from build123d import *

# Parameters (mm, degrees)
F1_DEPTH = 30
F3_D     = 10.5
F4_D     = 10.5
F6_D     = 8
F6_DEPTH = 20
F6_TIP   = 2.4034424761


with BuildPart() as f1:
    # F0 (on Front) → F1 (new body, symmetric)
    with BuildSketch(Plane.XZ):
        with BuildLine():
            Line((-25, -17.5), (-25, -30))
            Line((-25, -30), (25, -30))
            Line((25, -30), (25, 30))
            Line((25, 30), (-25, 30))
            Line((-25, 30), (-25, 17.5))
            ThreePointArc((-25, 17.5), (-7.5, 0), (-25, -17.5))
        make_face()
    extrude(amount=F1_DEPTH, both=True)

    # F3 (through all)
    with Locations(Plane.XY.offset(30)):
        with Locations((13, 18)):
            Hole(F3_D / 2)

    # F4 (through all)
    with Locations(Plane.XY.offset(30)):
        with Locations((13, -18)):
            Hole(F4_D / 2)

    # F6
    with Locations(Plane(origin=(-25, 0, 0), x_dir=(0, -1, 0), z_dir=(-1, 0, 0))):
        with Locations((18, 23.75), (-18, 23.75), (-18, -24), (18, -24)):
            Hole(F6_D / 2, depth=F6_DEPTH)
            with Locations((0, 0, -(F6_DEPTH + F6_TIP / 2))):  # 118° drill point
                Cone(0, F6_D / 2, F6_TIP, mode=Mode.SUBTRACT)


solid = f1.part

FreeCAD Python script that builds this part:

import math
import FreeCAD as App
import Part
import Sketcher

V = App.Vector
Q = App.Units.Quantity

doc = App.newDocument("Part")
body = doc.addObject("PartDesign::Body", "Body")

# Sketch on XZ plane
sketch1 = body.newObject("Sketcher::SketchObject", "Sketch")
sketch1.AttachmentSupport = (doc.getObject("XZ_Plane"), [""])
sketch1.MapMode = "FlatFace"
sketch1.addGeometry(Part.LineSegment(V(-25, -18, 0), V(-25, -30, 0)), False)
sketch1.addGeometry(Part.LineSegment(V(-25, -30, 0), V(25, -30, 0)), False)
sketch1.addGeometry(Part.LineSegment(V(25, -30, 0), V(25, 30, 0)), False)
sketch1.addGeometry(Part.LineSegment(V(25, 30, 0), V(-25, 30, 0)), False)
sketch1.addGeometry(Part.LineSegment(V(-25, 30, 0), V(-25, 18, 0)), False)
sketch1.addGeometry(Part.ArcOfCircle(Part.Circle(V(-25, 0, 0), V(0, 0, 1), 18), math.radians(-90), math.radians(90)), False)
sketch1.addConstraint(Sketcher.Constraint("Coincident", 0, 2, 1, 1))
sketch1.addConstraint(Sketcher.Constraint("Coincident", 1, 2, 2, 1))
sketch1.addConstraint(Sketcher.Constraint("Coincident", 2, 2, 3, 1))
sketch1.addConstraint(Sketcher.Constraint("Coincident", 3, 2, 4, 1))
sketch1.addConstraint(Sketcher.Constraint("Coincident", 4, 2, 5, 2))
sketch1.addConstraint(Sketcher.Constraint("Coincident", 5, 1, 0, 1))
sketch1.addConstraint(Sketcher.Constraint("Vertical", 0))
sketch1.addConstraint(Sketcher.Constraint("Horizontal", 1))
sketch1.addConstraint(Sketcher.Constraint("Vertical", 2))
sketch1.addConstraint(Sketcher.Constraint("Horizontal", 3))
sketch1.addConstraint(Sketcher.Constraint("Vertical", 4))
sketch1.addConstraint(Sketcher.Constraint("Symmetric", 0, 2, 2, 2, -1, 1))
sketch1.addConstraint(Sketcher.Constraint("Symmetric", 4, 2, 5, 1, -1))
sketch1.addConstraint(Sketcher.Constraint("Vertical", 5, 3, 0, 2))
sketch1.addConstraint(Sketcher.Constraint("Radius", 5, Q("17.5 mm")))
sketch1.addConstraint(Sketcher.Constraint("DistanceX", 1, 1, 1, 2, Q("50 mm")))
sketch1.addConstraint(Sketcher.Constraint("DistanceY", 2, 1, 2, 2, Q("60 mm")))
pad1 = body.newObject("PartDesign::Pad", "Pad")
pad1.Profile = sketch1
pad1.Length = 60
pad1.Midplane = True

# Sketch on XY plane
sketch2 = body.newObject("Sketcher::SketchObject", "Sketch001")
sketch2.AttachmentSupport = (doc.getObject("XY_Plane"), [""])
sketch2.MapMode = "FlatFace"
sketch2.AttachmentOffset = App.Placement(V(0, 0, 30), App.Rotation())
sketch2.addGeometry(Part.Circle(V(13, 18, 0), V(0, 0, 1), 5), False)
sketch2.addConstraint(Sketcher.Constraint("Diameter", 0, Q("10.5 mm")))
sketch2.addConstraint(Sketcher.Constraint("DistanceX", -1, 1, 0, 3, Q("13 mm")))
sketch2.addConstraint(Sketcher.Constraint("DistanceY", -1, 1, 0, 3, Q("18 mm")))
doc.recompute()
hole = body.newObject("PartDesign::Hole", "Hole")
hole.Profile = sketch2
hole.ThreadType = "None"
hole.Diameter = 10.5
hole.DepthType = "ThroughAll"

# Sketch on XY plane
sketch3 = body.newObject("Sketcher::SketchObject", "Sketch002")
sketch3.AttachmentSupport = (doc.getObject("XY_Plane"), [""])
sketch3.MapMode = "FlatFace"
sketch3.AttachmentOffset = App.Placement(V(0, 0, 30), App.Rotation())
sketch3.addGeometry(Part.Circle(V(13, -18, 0), V(0, 0, 1), 5), False)
sketch3.addConstraint(Sketcher.Constraint("Diameter", 0, Q("10.5 mm")))
sketch3.addConstraint(Sketcher.Constraint("DistanceX", -1, 1, 0, 3, Q("13 mm")))
sketch3.addConstraint(Sketcher.Constraint("DistanceY", 0, 3, -1, 1, Q("18 mm")))
doc.recompute()
hole2 = body.newObject("PartDesign::Hole", "Hole001")
hole2.Profile = sketch3
hole2.ThreadType = "None"
hole2.Diameter = 10.5
hole2.DepthType = "ThroughAll"

# Sketch on YZ plane
sketch4 = body.newObject("Sketcher::SketchObject", "Sketch003")
sketch4.AttachmentSupport = (doc.getObject("YZ_Plane"), [""])
sketch4.MapMode = "FlatFace"
sketch4.AttachmentOffset = App.Placement(V(0, 0, -25), App.Rotation())
sketch4.addGeometry(Part.Circle(V(-18, 23.8, 0), V(0, 0, 1), 4), False)
sketch4.addGeometry(Part.Circle(V(18, 23.8, 0), V(0, 0, 1), 4), False)
sketch4.addGeometry(Part.Circle(V(18, -24, 0), V(0, 0, 1), 4), False)
sketch4.addGeometry(Part.Circle(V(-18, -24, 0), V(0, 0, 1), 4), False)
sketch4.addConstraint(Sketcher.Constraint("Equal", 0, 1))
sketch4.addConstraint(Sketcher.Constraint("Equal", 1, 2))
sketch4.addConstraint(Sketcher.Constraint("Equal", 2, 3))
sketch4.addConstraint(Sketcher.Constraint("Symmetric", 0, 3, 1, 3, -2))
sketch4.addConstraint(Sketcher.Constraint("Symmetric", 2, 3, 3, 3, -2))
sketch4.addConstraint(Sketcher.Constraint("Vertical", 1, 3, 2, 3))
sketch4.addConstraint(Sketcher.Constraint("Diameter", 0, Q("8 mm")))
sketch4.addConstraint(Sketcher.Constraint("DistanceX", 0, 3, -1, 1, Q("18 mm")))
sketch4.addConstraint(Sketcher.Constraint("DistanceY", 2, 3, -1, 1, Q("24 mm")))
sketch4.addConstraint(Sketcher.Constraint("DistanceY", -1, 1, 0, 3, Q("23.75 mm")))
doc.recompute()
hole3 = body.newObject("PartDesign::Hole", "Hole002")
hole3.Profile = sketch4
hole3.ThreadType = "None"
hole3.Diameter = 8
hole3.DepthType = "Dimension"
hole3.Depth = 20
hole3.DrillPoint = "Angled"
hole3.DrillPointAngle = 118
hole3.Reversed = True

doc.recompute()
